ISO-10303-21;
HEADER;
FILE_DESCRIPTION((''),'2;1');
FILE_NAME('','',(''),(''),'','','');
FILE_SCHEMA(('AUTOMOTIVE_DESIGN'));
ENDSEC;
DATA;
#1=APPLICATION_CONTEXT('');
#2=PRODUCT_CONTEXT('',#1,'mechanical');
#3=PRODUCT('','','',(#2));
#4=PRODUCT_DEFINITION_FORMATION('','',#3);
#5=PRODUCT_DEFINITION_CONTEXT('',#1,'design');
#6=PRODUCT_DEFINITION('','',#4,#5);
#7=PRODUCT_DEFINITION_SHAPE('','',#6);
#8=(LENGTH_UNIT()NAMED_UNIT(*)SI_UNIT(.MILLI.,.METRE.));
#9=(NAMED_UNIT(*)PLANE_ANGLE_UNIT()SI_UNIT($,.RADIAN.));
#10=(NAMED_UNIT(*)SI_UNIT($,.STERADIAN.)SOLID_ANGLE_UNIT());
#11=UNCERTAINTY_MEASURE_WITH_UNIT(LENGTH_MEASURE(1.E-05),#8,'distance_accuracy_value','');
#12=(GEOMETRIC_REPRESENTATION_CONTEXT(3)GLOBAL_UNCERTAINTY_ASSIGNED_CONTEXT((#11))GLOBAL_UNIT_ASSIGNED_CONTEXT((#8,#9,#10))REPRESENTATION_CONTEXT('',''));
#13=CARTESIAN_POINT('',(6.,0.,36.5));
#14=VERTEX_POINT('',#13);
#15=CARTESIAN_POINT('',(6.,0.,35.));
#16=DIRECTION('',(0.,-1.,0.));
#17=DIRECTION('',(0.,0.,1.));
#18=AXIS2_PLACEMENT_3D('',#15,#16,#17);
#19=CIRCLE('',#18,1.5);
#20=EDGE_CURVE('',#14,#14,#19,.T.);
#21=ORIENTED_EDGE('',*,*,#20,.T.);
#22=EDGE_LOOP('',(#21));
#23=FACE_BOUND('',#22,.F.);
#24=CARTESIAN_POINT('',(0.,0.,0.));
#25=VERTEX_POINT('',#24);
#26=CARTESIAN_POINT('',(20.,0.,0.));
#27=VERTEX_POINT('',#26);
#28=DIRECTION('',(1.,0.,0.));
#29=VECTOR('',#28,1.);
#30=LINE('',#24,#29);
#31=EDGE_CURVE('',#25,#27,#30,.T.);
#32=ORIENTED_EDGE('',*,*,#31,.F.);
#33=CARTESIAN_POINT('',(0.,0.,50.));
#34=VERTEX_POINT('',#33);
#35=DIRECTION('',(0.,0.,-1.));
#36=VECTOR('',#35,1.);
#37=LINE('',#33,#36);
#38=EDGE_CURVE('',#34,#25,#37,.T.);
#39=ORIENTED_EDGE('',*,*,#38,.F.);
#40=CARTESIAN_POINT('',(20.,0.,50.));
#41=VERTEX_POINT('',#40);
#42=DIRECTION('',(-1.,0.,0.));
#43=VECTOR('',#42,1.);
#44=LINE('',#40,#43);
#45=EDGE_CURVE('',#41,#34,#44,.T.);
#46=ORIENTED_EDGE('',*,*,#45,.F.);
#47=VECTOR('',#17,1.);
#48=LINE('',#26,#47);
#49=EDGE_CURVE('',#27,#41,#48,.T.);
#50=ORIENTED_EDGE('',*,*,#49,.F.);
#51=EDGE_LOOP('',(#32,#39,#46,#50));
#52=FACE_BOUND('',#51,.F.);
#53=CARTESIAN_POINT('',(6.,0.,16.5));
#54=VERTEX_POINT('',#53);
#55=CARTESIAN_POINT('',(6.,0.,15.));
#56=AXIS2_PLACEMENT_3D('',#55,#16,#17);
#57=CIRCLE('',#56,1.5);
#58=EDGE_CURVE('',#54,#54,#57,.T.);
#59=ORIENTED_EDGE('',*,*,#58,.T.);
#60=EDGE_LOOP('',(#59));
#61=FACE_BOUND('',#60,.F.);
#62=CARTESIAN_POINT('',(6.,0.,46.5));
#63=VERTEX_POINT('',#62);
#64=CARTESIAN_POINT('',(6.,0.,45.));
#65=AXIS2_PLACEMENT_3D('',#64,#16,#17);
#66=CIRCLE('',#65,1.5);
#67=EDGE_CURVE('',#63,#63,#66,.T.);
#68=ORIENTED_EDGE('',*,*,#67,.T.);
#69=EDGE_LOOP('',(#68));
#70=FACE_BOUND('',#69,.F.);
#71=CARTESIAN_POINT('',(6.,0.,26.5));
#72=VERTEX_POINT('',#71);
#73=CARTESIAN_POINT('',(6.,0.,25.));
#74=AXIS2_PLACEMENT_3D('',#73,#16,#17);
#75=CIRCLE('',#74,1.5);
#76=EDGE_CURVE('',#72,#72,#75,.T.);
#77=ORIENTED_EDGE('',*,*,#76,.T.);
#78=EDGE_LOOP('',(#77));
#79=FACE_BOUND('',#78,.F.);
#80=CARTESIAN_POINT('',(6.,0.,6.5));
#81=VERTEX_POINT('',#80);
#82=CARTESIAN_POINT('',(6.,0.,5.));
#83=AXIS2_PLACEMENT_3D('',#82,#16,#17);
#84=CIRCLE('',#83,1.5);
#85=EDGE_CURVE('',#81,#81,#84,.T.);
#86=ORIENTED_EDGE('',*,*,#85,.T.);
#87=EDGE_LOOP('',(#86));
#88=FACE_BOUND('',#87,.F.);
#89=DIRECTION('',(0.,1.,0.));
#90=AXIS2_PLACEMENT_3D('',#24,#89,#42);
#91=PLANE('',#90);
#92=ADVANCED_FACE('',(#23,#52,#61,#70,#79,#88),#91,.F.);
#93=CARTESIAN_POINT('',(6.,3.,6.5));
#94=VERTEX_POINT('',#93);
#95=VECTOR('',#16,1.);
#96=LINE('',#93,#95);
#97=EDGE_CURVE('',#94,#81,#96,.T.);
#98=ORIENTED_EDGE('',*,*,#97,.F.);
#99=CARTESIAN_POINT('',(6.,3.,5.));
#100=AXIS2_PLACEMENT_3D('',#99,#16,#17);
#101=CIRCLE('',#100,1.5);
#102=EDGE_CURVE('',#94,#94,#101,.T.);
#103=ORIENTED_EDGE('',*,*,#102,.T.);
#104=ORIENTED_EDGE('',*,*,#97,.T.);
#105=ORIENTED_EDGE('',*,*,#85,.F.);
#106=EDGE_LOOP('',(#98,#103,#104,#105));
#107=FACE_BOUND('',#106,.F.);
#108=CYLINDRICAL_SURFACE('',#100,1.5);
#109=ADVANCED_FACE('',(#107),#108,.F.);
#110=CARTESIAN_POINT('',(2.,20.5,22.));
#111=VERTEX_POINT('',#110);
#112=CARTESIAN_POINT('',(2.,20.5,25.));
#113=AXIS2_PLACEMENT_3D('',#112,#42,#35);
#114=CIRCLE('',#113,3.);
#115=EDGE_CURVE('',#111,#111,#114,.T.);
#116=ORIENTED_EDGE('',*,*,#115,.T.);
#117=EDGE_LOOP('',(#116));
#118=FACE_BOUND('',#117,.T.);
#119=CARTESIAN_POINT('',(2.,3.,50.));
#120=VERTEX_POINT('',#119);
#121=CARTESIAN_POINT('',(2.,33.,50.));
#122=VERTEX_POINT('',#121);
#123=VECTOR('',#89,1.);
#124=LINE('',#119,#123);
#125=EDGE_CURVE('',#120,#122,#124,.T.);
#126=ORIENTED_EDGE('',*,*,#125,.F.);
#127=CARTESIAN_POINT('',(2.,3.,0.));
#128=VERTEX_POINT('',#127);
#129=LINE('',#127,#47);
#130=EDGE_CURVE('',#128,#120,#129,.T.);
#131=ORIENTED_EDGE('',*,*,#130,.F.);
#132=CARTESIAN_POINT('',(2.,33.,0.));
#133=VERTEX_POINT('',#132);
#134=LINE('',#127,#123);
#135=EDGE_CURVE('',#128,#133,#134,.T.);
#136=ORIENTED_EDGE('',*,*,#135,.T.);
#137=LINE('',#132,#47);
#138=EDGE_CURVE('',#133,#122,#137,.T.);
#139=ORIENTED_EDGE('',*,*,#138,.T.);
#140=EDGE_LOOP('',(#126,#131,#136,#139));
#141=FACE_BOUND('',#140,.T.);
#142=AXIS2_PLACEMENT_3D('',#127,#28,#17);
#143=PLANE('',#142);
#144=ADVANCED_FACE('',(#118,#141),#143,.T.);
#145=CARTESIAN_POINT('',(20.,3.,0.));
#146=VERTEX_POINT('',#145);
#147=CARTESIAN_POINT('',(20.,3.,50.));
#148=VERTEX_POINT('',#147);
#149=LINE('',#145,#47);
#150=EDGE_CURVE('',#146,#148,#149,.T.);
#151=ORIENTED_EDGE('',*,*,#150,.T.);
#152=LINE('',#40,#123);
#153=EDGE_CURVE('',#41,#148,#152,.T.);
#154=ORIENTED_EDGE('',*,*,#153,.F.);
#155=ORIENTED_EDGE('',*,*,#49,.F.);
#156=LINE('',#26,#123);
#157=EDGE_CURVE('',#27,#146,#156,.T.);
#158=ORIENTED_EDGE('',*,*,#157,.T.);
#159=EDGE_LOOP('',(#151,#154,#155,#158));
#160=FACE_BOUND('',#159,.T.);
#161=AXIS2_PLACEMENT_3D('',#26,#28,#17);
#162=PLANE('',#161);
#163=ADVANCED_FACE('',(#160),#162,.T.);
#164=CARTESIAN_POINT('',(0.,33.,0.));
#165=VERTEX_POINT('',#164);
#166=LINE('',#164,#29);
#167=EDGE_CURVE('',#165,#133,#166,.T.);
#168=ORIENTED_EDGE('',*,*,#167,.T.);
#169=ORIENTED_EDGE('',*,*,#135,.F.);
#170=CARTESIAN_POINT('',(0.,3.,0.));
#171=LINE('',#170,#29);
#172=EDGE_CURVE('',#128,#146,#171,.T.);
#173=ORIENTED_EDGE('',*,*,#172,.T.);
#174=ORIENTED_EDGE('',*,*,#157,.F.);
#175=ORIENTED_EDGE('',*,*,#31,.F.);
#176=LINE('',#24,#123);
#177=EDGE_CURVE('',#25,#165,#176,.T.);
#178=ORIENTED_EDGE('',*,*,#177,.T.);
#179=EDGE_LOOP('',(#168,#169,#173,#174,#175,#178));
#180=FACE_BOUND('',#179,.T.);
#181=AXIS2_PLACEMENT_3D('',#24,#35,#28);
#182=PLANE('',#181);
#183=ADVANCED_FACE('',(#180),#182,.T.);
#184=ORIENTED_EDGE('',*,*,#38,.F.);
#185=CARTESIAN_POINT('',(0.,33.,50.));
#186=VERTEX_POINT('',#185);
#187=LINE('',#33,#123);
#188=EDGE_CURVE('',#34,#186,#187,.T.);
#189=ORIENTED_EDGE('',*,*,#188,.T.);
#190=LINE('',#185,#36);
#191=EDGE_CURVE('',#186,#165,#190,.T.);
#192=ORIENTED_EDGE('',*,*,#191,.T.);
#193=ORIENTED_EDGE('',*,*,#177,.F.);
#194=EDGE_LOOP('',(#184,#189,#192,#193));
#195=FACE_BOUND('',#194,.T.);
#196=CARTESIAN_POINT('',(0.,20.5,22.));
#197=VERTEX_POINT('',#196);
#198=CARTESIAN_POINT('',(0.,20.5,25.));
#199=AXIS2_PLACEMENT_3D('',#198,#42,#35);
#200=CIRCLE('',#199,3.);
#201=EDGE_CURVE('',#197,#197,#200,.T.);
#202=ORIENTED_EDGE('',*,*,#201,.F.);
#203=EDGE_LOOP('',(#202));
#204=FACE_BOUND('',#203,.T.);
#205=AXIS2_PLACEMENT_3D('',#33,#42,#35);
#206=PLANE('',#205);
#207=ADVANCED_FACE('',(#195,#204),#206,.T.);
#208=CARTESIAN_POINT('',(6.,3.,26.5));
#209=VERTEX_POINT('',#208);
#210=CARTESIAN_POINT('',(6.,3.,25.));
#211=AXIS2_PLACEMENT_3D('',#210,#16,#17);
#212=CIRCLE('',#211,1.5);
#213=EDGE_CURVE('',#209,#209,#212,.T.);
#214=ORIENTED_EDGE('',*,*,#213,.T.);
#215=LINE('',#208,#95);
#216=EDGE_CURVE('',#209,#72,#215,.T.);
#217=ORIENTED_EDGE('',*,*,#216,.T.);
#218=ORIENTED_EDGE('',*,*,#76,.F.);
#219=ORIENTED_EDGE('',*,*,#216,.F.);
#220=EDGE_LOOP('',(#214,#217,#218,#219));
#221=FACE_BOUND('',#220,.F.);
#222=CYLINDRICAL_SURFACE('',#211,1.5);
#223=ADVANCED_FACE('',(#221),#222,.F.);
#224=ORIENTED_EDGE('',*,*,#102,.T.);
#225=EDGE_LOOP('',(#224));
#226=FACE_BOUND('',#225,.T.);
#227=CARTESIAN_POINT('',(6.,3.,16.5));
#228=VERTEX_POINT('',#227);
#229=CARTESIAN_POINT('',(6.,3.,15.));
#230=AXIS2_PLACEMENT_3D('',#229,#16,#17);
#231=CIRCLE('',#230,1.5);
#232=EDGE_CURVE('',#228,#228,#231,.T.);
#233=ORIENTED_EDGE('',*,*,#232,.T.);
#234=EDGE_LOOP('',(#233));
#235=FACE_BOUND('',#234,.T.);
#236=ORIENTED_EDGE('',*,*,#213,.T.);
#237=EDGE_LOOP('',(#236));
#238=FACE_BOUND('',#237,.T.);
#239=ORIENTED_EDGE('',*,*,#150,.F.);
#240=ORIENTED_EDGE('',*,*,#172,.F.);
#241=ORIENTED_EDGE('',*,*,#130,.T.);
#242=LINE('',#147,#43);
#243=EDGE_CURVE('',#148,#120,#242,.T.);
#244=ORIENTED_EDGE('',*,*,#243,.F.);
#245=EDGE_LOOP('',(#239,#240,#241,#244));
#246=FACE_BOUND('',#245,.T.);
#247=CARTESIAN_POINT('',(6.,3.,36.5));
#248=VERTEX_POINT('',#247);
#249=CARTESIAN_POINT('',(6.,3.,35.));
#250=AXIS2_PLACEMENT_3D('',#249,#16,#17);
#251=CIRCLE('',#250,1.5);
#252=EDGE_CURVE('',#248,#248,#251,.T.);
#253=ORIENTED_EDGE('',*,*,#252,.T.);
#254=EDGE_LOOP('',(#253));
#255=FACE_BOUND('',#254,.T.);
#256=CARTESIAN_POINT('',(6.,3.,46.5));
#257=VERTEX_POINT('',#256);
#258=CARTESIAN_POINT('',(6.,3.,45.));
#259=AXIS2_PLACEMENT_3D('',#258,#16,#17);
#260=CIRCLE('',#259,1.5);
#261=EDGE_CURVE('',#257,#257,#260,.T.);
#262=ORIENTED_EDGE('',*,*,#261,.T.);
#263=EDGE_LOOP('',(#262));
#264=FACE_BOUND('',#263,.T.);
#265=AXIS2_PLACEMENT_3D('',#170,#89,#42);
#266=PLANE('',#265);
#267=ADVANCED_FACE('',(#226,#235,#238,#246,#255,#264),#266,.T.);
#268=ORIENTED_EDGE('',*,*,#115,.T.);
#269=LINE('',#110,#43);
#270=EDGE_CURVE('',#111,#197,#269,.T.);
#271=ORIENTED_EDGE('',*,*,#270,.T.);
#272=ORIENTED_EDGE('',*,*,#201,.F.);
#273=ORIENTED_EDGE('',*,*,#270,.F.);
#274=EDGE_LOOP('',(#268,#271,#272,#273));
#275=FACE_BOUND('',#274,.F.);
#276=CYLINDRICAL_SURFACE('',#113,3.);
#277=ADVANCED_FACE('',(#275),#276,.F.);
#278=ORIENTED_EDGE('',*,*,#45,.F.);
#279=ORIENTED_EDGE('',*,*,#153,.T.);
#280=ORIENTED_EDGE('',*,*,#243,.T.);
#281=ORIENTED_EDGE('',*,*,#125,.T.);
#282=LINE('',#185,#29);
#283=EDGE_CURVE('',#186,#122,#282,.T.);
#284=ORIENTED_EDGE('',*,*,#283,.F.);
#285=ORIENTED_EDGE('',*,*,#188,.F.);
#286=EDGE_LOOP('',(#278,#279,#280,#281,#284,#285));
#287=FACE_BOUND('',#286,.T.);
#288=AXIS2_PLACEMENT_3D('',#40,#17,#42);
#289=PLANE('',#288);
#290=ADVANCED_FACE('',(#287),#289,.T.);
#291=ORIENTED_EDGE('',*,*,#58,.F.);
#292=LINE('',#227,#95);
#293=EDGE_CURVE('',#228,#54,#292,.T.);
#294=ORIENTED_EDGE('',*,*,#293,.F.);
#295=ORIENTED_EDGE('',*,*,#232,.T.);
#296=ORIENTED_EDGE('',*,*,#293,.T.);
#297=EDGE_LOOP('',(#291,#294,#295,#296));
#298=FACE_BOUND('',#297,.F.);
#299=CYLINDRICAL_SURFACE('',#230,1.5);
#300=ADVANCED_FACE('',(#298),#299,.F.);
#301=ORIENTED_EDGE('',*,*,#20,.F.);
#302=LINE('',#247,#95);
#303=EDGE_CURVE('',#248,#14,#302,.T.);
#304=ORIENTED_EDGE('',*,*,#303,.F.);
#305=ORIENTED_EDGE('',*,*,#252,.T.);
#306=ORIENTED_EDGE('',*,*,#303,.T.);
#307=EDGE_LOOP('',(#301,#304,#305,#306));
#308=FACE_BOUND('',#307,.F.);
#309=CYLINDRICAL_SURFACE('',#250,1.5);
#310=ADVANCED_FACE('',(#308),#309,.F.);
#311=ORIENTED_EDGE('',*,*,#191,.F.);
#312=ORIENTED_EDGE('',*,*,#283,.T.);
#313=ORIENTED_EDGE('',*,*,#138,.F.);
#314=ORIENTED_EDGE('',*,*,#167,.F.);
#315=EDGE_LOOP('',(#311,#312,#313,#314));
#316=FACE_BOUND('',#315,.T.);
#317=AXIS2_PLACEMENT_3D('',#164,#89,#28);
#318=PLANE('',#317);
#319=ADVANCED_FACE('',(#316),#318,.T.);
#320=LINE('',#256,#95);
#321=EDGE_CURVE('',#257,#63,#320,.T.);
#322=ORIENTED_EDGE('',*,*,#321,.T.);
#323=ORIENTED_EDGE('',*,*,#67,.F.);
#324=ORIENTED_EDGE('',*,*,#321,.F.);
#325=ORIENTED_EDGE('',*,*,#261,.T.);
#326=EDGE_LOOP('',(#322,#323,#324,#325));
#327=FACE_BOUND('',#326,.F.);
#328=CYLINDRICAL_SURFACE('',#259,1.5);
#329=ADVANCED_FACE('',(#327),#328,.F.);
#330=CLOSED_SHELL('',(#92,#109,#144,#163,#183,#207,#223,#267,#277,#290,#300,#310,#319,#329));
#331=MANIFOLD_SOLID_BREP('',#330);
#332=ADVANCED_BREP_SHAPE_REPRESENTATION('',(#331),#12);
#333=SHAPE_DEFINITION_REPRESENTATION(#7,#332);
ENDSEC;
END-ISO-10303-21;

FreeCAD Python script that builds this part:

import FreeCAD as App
import Part
import Sketcher

V = App.Vector
Q = App.Units.Quantity

doc = App.newDocument("Part")
body = doc.addObject("PartDesign::Body", "Body")

# Sketch on XZ plane
sketch1 = doc.addObject("Sketcher::SketchObject", "Sketch")
body.addObject(sketch1)
sketch1.AttachmentSupport = (doc.XZ_Plane, [""])
sketch1.MapMode = "FlatFace"
sketch1.addGeometry([
    Part.LineSegment(V(20, 0, 0), V(0, 0, 0)),
    Part.LineSegment(V(0, 0, 0), V(0, 50, 0)),
    Part.LineSegment(V(0, 50, 0), V(20, 50, 0)),
    Part.LineSegment(V(20, 50, 0), V(20, 0, 0)),
], False)
sketch1.addConstraint([
    Sketcher.Constraint("Coincident", 0, 2, 1, 1),
    Sketcher.Constraint("Coincident", 1, 2, 2, 1),
    Sketcher.Constraint("Coincident", 2, 2, 3, 1),
    Sketcher.Constraint("Coincident", 3, 2, 0, 1),
    Sketcher.Constraint("Horizontal", 0),
    Sketcher.Constraint("Vertical", 1),
    Sketcher.Constraint("Horizontal", 2),
    Sketcher.Constraint("Vertical", 3),
    Sketcher.Constraint("Coincident", 0, 2, -1, 1),
    Sketcher.Constraint("DistanceX", 0, 2, 0, 1, Q("20 mm")),
    Sketcher.Constraint("DistanceY", 1, 1, 1, 2, Q("50 mm")),
])
pad1 = doc.addObject("PartDesign::Pad", "Pad")
body.addObject(pad1)
pad1.Profile = sketch1
pad1.Length = 3
pad1.Reversed = True

# Sketch on XZ plane
sketch2 = doc.addObject("Sketcher::SketchObject", "Sketch001")
body.addObject(sketch2)
sketch2.AttachmentSupport = (doc.XZ_Plane, [""])
sketch2.MapMode = "FlatFace"
sketch2.AttachmentOffset = App.Placement(V(0, 0, -3), App.Rotation())
sketch2.addGeometry([
    Part.LineSegment(V(0, 0, 0), V(0, 50, 0)),
    Part.LineSegment(V(0, 50, 0), V(2, 50, 0)),
    Part.LineSegment(V(2, 50, 0), V(2, 0, 0)),
    Part.LineSegment(V(2, 0, 0), V(0, 0, 0)),
], False)
sketch2.addConstraint([
    Sketcher.Constraint("Coincident", 0, 2, 1, 1),
    Sketcher.Constraint("Coincident", 1, 2, 2, 1),
    Sketcher.Constraint("Coincident", 2, 2, 3, 1),
    Sketcher.Constraint("Coincident", 3, 2, 0, 1),
    Sketcher.Constraint("Vertical", 0),
    Sketcher.Constraint("Horizontal", 1),
    Sketcher.Constraint("Vertical", 2),
    Sketcher.Constraint("Horizontal", 3),
    Sketcher.Constraint("Coincident", 3, 2, -1, 1),
    Sketcher.Constraint("DistanceX", 1, 1, 1, 2, Q("2 mm")),
    Sketcher.Constraint("DistanceY", 0, 1, 0, 2, Q("50 mm")),
])
pad2 = doc.addObject("PartDesign::Pad", "Pad001")
body.addObject(pad2)
pad2.Profile = sketch2
pad2.Length = 30
pad2.Reversed = True

# Sketch on YZ plane
sketch3 = doc.addObject("Sketcher::SketchObject", "Sketch002")
body.addObject(sketch3)
sketch3.AttachmentSupport = (doc.YZ_Plane, [""])
sketch3.MapMode = "FlatFace"
sketch3.AttachmentOffset = App.Placement(V(0, 0, 2), App.Rotation())
sketch3.addGeometry(Part.Circle(V(20.5, 25, 0), V(0, 0, 1), 3), False)
sketch3.addConstraint([
    Sketcher.Constraint("Diameter", 0, Q("6 mm")),
    Sketcher.Constraint("DistanceY", -1, 1, 0, 3, Q("25 mm")),
    Sketcher.Constraint("DistanceX", -1, 1, 0, 3, Q("20.5 mm")),
])
doc.recompute()
hole = doc.addObject("PartDesign::Hole", "Hole")
body.addObject(hole)
hole.Profile = sketch3
hole.ThreadType = "None"
hole.Diameter = 6
hole.DepthType = "Dimension"
hole.Depth = 8
hole.DrillPoint = "Angled"
hole.DrillPointAngle = 118

# Sketch on XZ plane
sketch4 = doc.addObject("Sketcher::SketchObject", "Sketch003")
body.addObject(sketch4)
sketch4.AttachmentSupport = (doc.XZ_Plane, [""])
sketch4.MapMode = "FlatFace"
sketch4.AttachmentOffset = App.Placement(V(0, 0, -3), App.Rotation())
sketch4.addGeometry([
    Part.Circle(V(6, 5, 0), V(0, 0, 1), 1.5),  # 0
    Part.Circle(V(6, 15, 0), V(0, 0, 1), 1.5),  # 1
    Part.Circle(V(6, 25, 0), V(0, 0, 1), 1.5),  # 2
    Part.Circle(V(6, 35, 0), V(0, 0, 1), 1.5),  # 3
    Part.Circle(V(6, 45, 0), V(0, 0, 1), 1.5),  # 4
], False)
sketch4.addConstraint([
    Sketcher.Constraint("Equal", 0, 1),
    Sketcher.Constraint("Equal", 1, 2),
    Sketcher.Constraint("Equal", 2, 3),
    Sketcher.Constraint("Equal", 3, 4),
    Sketcher.Constraint("Vertical", 0, 3, 1, 3),
    Sketcher.Constraint("Vertical", 1, 3, 2, 3),
    Sketcher.Constraint("Vertical", 2, 3, 3, 3),
    Sketcher.Constraint("Vertical", 3, 3, 4, 3),
    Sketcher.Constraint("Diameter", 0, Q("3 mm")),
    Sketcher.Constraint("DistanceX", -1, 1, 0, 3, Q("6 mm")),
    Sketcher.Constraint("DistanceY", -1, 1, 0, 3, Q("5 mm")),
    Sketcher.Constraint("DistanceY", -1, 1, 1, 3, Q("15 mm")),
    Sketcher.Constraint("DistanceY", -1, 1, 2, 3, Q("25 mm")),
    Sketcher.Constraint("DistanceY", -1, 1, 3, 3, Q("35 mm")),
    Sketcher.Constraint("DistanceY", -1, 1, 4, 3, Q("45 mm")),
])
doc.recompute()
hole2 = doc.addObject("PartDesign::Hole", "Hole001")
body.addObject(hole2)
hole2.Profile = sketch4
hole2.ThreadType = "None"
hole2.Diameter = 3
hole2.DepthType = "Dimension"
hole2.Depth = 8
hole2.DrillPoint = "Angled"
hole2.DrillPointAngle = 118
hole2.Reversed = True

doc.recompute()
